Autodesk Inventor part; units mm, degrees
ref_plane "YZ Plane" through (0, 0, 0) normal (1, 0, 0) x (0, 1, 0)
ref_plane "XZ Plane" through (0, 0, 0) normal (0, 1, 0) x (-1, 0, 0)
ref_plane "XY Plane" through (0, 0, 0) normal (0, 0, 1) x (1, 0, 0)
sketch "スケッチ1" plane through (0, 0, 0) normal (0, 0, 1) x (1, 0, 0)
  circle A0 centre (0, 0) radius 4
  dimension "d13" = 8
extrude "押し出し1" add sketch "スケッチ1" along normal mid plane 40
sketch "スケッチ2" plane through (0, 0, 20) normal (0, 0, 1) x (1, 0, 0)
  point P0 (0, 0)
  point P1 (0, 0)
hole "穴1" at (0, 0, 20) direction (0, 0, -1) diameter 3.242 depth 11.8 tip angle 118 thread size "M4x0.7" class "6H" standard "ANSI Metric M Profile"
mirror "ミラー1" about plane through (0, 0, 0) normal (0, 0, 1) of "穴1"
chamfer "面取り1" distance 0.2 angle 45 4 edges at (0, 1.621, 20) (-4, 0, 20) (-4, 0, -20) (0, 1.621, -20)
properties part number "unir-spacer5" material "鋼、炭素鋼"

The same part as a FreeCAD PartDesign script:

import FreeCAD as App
import Part
import Sketcher


def edges_at(feature, points):
    """Names of the edges that pass closest to the given points."""
    edges = feature.Shape.Edges
    near = lambda p: min(range(len(edges)), key=lambda i: edges[i].distToShape(Part.Vertex(*p))[0])
    return sorted({f"Edge{near(p) + 1}" for p in points})

doc = App.newDocument("Part")
body = doc.addObject("PartDesign::Body", "Body")

# Sketch on XY plane
sketch1 = body.newObject("Sketcher::SketchObject", "Sketch")
sketch1.AttachmentSupport = (doc.getObject("XY_Plane"), [""])
sketch1.MapMode = "FlatFace"
sketch1.addGeometry(Part.Circle(App.Vector(0, 0, 0), App.Vector(0, 0, 1), 4), False)
sketch1.addConstraint(Sketcher.Constraint("Coincident", 0, 3, -1, 1))
sketch1.addConstraint(Sketcher.Constraint("Diameter", 0, 8.0))
pad1 = body.newObject("PartDesign::Pad", "Pad")
pad1.Profile = sketch1
pad1.Length = 40
pad1.Midplane = True

# Sketch on XY plane
sketch2 = body.newObject("Sketcher::SketchObject", "Sketch001")
sketch2.AttachmentSupport = (doc.getObject("XY_Plane"), [""])
sketch2.MapMode = "FlatFace"
sketch2.AttachmentOffset = App.Placement(App.Vector(0, 0, 20), App.Rotation())
sketch2.addGeometry(Part.Circle(App.Vector(0, 0, 0), App.Vector(0, 0, 1), 1.621), False)
sketch2.addConstraint(Sketcher.Constraint("Coincident", 0, 3, -1, 1))
sketch2.addConstraint(Sketcher.Constraint("Diameter", 0, 3.242))
doc.recompute()
hole = body.newObject("PartDesign::Hole", "Hole")
hole.Profile = sketch2
hole.ThreadType = "None"
hole.Diameter = 3.242
hole.DepthType = "Dimension"
hole.Depth = 11.8
hole.DrillPoint = "Angled"
hole.DrillPointAngle = 118
doc.recompute()

mirrored = body.newObject("PartDesign::Mirrored", "Mirrored")
mirrored.Originals = [hole]
mirrored.MirrorPlane = (doc.getObject("XY_Plane"), [""])
body.Tip = mirrored
doc.recompute()

chamfer = body.newObject("PartDesign::Chamfer", "Chamfer")
chamfer.Base = (mirrored, edges_at(mirrored, [
    (0, 1.621, 20),
    (-4, 0, 20),
    (-4, 0, -20),
    (0, 1.621, -20),
]))
chamfer.Size = 0.2

doc.recompute()
